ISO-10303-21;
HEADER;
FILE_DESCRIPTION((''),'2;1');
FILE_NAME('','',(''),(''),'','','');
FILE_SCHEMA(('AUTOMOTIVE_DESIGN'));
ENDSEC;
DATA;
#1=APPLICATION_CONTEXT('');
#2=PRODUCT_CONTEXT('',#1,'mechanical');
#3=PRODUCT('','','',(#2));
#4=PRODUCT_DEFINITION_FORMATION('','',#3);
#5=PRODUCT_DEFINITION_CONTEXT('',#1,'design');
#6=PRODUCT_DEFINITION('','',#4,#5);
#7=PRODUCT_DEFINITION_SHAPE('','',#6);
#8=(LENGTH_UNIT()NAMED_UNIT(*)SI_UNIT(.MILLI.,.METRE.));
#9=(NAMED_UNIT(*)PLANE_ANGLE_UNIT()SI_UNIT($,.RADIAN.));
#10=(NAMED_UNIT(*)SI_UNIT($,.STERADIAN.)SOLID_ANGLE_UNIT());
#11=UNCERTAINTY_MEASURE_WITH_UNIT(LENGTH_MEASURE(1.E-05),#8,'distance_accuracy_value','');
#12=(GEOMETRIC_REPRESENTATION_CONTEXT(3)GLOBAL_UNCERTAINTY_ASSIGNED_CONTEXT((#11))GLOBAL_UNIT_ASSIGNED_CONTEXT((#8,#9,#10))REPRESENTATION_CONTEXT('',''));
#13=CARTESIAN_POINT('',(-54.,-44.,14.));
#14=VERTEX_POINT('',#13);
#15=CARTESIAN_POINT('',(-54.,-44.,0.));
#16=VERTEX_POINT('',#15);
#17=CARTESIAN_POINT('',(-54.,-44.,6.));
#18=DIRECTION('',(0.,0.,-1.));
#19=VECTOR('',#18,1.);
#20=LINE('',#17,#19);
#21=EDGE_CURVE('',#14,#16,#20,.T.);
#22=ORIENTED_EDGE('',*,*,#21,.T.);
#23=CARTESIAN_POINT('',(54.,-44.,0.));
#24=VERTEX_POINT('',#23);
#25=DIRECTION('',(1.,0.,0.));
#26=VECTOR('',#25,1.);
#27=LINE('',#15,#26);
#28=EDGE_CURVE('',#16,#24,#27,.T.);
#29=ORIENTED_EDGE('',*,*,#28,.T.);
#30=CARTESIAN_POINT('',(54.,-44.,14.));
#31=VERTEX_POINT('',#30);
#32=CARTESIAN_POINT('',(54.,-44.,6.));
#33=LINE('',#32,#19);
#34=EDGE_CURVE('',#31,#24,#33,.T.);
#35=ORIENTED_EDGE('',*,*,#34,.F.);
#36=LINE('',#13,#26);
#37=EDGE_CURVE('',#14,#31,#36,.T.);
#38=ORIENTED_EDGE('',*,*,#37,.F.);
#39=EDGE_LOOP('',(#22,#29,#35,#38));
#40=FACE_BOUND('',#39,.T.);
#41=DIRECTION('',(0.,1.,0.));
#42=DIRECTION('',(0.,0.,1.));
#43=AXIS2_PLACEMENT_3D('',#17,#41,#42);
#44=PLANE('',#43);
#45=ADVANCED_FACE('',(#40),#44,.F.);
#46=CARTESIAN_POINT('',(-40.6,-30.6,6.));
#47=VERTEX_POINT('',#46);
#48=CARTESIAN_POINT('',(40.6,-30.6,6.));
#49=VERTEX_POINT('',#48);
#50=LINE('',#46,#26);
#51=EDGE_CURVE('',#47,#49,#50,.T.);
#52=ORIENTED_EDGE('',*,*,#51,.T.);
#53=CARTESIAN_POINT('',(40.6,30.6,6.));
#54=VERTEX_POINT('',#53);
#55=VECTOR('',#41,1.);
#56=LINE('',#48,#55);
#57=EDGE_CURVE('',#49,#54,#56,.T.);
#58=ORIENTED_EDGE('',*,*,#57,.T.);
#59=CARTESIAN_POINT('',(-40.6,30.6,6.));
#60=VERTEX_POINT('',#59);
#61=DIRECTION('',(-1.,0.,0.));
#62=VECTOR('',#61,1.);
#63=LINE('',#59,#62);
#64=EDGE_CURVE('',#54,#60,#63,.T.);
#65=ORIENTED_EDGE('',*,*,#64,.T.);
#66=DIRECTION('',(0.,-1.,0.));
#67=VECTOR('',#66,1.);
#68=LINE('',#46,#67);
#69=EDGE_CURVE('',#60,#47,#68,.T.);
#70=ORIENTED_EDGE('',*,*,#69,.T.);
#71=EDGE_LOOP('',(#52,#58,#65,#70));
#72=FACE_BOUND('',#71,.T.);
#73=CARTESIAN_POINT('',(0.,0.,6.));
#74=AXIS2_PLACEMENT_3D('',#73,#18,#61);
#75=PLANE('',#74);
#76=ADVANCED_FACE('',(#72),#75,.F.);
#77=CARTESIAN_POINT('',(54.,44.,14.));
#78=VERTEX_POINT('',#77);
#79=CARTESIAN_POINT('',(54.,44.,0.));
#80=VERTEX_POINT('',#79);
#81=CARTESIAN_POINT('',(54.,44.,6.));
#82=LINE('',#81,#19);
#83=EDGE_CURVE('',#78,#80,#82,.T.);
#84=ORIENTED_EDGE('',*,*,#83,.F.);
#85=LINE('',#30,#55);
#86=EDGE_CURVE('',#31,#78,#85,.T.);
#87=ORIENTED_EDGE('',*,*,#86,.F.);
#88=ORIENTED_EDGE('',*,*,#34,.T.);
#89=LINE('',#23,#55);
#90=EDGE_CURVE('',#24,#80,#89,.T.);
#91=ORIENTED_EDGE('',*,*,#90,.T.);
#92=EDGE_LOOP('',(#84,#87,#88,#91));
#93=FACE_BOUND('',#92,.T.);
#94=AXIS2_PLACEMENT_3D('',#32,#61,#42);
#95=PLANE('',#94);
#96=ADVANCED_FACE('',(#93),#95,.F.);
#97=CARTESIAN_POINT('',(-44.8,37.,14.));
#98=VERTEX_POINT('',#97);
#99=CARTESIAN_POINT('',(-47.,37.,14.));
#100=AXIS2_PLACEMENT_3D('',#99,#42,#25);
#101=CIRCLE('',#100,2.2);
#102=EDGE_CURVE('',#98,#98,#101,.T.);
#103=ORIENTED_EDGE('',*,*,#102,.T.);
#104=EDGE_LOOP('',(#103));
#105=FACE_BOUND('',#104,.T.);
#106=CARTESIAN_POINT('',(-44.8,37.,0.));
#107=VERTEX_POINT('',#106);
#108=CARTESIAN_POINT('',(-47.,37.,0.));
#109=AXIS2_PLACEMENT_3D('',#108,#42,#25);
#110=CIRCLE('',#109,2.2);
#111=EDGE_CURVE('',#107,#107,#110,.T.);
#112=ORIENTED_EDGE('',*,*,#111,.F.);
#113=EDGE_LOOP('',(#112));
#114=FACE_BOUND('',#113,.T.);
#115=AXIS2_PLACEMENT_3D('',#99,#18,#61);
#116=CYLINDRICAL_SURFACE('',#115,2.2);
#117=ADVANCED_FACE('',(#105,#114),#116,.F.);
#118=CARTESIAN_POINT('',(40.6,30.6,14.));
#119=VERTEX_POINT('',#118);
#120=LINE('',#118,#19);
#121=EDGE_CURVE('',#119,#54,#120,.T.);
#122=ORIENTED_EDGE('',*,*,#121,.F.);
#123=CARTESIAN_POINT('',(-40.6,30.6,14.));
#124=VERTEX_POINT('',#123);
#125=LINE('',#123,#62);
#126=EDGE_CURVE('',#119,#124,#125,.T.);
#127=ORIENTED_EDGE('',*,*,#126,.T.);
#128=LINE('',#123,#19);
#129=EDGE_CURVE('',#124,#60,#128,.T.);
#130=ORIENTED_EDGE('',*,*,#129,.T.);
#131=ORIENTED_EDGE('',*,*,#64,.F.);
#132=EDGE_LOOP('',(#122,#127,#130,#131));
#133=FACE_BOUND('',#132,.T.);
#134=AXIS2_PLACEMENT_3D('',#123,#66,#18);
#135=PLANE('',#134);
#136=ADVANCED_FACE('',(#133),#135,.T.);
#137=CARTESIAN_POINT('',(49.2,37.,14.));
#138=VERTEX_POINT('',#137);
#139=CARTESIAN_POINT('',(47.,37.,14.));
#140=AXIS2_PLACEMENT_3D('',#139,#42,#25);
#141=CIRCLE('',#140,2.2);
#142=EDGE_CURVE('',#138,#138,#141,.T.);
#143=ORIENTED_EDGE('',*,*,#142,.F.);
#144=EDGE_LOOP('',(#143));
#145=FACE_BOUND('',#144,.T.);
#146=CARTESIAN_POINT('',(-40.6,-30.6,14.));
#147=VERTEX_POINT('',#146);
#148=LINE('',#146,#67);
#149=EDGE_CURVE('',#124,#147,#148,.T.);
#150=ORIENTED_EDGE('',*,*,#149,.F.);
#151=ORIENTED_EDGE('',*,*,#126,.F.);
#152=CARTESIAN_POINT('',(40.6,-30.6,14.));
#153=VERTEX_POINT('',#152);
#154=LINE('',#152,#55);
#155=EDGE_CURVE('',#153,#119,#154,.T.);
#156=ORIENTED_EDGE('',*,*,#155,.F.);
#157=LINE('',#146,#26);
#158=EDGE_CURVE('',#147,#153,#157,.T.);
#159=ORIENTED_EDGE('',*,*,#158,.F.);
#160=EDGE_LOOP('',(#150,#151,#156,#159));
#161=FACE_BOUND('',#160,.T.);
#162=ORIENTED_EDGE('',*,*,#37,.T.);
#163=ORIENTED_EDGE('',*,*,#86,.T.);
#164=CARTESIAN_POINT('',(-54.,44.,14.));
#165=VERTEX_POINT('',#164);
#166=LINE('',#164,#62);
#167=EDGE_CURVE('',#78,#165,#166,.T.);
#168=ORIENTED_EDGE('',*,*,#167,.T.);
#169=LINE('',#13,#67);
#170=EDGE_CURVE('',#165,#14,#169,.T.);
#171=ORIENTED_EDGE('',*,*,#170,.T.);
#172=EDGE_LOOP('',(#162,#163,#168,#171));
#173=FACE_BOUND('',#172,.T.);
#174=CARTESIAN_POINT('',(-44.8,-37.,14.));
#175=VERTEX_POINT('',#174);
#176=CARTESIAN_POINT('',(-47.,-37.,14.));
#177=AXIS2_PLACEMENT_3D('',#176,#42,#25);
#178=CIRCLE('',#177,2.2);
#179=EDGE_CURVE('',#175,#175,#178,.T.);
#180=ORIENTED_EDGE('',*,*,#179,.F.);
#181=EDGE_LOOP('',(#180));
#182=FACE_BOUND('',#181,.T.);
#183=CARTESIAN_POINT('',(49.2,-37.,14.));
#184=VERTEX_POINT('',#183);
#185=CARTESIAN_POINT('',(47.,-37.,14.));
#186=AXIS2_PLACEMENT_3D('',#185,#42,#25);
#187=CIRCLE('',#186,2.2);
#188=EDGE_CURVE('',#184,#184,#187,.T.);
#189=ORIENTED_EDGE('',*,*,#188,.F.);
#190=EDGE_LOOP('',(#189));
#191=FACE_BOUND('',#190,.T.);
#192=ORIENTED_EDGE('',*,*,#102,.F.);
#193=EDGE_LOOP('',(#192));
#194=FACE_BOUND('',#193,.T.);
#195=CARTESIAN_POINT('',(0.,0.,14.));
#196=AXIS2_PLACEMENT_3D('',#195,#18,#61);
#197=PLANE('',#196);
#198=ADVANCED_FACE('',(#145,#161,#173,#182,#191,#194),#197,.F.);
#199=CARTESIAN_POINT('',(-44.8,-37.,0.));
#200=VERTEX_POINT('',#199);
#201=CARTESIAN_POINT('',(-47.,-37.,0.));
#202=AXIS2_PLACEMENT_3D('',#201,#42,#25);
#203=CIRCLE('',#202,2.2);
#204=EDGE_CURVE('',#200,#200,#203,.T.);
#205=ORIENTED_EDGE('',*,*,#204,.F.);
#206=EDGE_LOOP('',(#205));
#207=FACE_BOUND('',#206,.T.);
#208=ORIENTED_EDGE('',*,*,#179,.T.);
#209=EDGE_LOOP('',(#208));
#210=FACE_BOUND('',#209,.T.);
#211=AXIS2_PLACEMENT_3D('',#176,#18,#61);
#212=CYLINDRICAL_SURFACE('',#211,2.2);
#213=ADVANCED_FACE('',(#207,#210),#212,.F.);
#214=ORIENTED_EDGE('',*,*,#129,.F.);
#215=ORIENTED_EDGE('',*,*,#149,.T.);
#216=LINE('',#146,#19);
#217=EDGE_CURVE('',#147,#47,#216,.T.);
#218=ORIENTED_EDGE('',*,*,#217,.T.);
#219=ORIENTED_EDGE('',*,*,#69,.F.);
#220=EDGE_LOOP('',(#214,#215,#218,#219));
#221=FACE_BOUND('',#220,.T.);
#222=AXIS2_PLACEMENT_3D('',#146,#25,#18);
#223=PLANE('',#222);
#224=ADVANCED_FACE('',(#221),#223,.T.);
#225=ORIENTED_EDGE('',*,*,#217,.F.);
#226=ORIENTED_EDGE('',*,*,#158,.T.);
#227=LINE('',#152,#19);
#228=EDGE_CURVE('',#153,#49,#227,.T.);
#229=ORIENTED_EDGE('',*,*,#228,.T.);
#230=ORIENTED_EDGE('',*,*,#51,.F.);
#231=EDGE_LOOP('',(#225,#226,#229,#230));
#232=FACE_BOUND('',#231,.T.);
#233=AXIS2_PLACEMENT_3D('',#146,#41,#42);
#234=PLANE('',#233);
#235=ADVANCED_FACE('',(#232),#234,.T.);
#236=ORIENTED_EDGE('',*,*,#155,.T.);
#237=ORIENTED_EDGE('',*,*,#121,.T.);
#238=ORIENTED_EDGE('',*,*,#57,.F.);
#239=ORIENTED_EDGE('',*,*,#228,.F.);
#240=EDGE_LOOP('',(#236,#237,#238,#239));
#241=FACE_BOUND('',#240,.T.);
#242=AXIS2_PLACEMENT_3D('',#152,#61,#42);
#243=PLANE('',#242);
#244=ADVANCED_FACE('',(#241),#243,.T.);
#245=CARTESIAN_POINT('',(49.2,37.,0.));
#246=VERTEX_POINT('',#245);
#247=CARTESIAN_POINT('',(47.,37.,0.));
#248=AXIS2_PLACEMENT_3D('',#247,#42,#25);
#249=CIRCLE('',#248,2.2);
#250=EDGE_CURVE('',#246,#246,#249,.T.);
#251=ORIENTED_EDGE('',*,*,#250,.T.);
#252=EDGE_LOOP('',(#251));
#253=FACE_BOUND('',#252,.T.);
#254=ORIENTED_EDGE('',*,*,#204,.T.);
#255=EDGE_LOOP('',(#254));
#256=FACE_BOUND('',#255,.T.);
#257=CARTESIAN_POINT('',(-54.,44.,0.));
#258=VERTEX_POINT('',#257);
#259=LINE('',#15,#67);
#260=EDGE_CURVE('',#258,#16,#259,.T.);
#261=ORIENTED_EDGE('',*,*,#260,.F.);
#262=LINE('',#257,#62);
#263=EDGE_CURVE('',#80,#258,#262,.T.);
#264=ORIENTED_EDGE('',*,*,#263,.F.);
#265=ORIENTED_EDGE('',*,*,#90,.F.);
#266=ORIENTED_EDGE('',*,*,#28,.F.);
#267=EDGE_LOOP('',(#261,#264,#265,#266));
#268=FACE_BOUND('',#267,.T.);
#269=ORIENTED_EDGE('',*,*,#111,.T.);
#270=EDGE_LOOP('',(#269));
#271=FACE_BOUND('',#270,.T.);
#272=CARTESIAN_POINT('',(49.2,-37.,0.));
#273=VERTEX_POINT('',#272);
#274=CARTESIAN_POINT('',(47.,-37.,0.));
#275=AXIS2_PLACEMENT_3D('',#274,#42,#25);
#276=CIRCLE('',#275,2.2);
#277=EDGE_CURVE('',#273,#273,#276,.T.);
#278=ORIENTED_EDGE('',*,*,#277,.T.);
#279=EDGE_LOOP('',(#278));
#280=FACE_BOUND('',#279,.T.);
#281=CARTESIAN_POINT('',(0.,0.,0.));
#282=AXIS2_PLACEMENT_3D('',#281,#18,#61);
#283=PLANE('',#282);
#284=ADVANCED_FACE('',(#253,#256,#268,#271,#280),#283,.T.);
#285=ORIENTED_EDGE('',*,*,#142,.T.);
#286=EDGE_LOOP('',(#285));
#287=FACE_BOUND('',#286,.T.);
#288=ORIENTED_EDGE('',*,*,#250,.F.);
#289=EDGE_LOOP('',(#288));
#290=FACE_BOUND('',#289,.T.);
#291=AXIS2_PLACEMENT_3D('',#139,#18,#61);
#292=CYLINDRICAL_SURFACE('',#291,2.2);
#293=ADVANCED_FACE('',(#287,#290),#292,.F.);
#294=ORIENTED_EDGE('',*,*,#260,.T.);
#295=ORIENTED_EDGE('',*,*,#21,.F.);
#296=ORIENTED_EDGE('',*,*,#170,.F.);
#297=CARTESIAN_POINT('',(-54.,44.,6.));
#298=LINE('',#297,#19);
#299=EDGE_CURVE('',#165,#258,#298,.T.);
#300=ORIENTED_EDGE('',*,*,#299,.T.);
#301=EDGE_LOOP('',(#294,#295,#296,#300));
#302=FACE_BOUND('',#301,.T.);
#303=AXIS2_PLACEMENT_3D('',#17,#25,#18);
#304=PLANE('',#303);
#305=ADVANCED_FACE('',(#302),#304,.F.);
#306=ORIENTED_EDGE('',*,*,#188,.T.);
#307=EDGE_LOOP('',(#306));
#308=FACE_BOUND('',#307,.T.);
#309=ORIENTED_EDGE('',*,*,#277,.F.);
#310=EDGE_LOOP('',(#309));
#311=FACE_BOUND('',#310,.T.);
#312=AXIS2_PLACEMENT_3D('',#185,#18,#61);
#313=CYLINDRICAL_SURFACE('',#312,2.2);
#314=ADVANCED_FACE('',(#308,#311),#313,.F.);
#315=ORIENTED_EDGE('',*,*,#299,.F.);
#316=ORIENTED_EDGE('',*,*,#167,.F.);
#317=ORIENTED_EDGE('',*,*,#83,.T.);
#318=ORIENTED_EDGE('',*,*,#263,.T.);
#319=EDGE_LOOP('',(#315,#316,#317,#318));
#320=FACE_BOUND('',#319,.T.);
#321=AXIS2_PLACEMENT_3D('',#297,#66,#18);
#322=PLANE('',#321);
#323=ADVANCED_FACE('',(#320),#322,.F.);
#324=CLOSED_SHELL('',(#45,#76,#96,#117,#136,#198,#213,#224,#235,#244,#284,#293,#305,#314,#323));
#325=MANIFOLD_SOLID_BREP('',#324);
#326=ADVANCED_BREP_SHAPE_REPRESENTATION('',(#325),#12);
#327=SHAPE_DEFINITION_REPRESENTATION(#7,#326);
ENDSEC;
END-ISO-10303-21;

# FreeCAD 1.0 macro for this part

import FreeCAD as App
import Part
import Sketcher

V = App.Vector


def add_polygon(sketch, points):
    """Adds a closed chain of lines whose ends are joined by coincident constraints."""
    first, n = sketch.GeometryCount, len(points)
    for a, b in zip(points, points[1:] + points[:1]):
        sketch.addGeometry(Part.LineSegment(App.Vector(*a, 0), App.Vector(*b, 0)), False)
    for i in range(n):
        sketch.addConstraint(Sketcher.Constraint("Coincident", first + i, 2, first + (i + 1) % n, 1))

doc = App.newDocument("Part")
body = doc.addObject("PartDesign::Body", "Body")

# Sketch on XY plane
sketch1 = body.newObject("Sketcher::SketchObject", "Sketch")
sketch1.AttachmentSupport = (doc.getObject("XY_Plane"), [""])
sketch1.MapMode = "FlatFace"
add_polygon(sketch1, [(-54, 44), (-54, -44), (54, -44), (54, 44)])  # lines 0-3
sketch1.addConstraint([
    Sketcher.Constraint("Vertical", 0),
    Sketcher.Constraint("Horizontal", 1),
    Sketcher.Constraint("Vertical", 2),
    Sketcher.Constraint("Horizontal", 3),
    Sketcher.Constraint("Symmetric", 0, 2, 2, 2, -1, 1),
    Sketcher.Constraint("DistanceX", 1, 1, 1, 2, 108.0),
    Sketcher.Constraint("DistanceY", 0, 2, 0, 1, 88.0),
])
pad1 = body.newObject("PartDesign::Pad", "Pad")
pad1.Profile = sketch1
pad1.Length = 6

# Sketch on XY plane
sketch2 = body.newObject("Sketcher::SketchObject", "Sketch001")
sketch2.AttachmentSupport = (doc.getObject("XY_Plane"), [""])
sketch2.MapMode = "FlatFace"
sketch2.AttachmentOffset = App.Placement(V(0, 0, 6), App.Rotation())
add_polygon(sketch2, [(-54, 44), (-54, -44), (54, -44), (54, 44)])  # lines 0-3
add_polygon(sketch2, [(40.6, -30.6), (-40.6, -30.6), (-40.6, 30.6), (40.6, 30.6)])  # lines 4-7
sketch2.addConstraint([
    Sketcher.Constraint("Vertical", 0),
    Sketcher.Constraint("Horizontal", 1),
    Sketcher.Constraint("Vertical", 2),
    Sketcher.Constraint("Horizontal", 3),
    Sketcher.Constraint("Horizontal", 4),
    Sketcher.Constraint("Vertical", 5),
    Sketcher.Constraint("Horizontal", 6),
    Sketcher.Constraint("Vertical", 7),
    Sketcher.Constraint("Symmetric", 0, 2, 2, 2, -1, 1),
    Sketcher.Constraint("Symmetric", 4, 2, 6, 2, -1, 1),
    Sketcher.Constraint("DistanceX", 1, 1, 1, 2, 108.0),
    Sketcher.Constraint("DistanceY", 0, 2, 0, 1, 88.0),
    Sketcher.Constraint("DistanceX", 4, 2, 4, 1, 81.2),
    Sketcher.Constraint("DistanceY", 5, 1, 5, 2, 61.2),
])
pad2 = body.newObject("PartDesign::Pad", "Pad001")
pad2.Profile = sketch2
pad2.Length = 8

# Sketch on XY plane
sketch3 = body.newObject("Sketcher::SketchObject", "Sketch002")
sketch3.AttachmentSupport = (doc.getObject("XY_Plane"), [""])
sketch3.MapMode = "FlatFace"
sketch3.addGeometry(Part.Circle(V(-47, -37, 0), V(0, 0, 1), 2.2), False)
sketch3.addConstraint([
    Sketcher.Constraint("Diameter", 0, 4.4),
    Sketcher.Constraint("DistanceX", 0, 3, -1, 1, 47.0),
    Sketcher.Constraint("DistanceY", 0, 3, -1, 1, 37.0),
])
pocket1 = body.newObject("PartDesign::Pocket", "Pocket")
pocket1.Profile = sketch3
pocket1.Length = 14
pocket1.Reversed = True

# Sketch on XY plane
sketch4 = body.newObject("Sketcher::SketchObject", "Sketch003")
sketch4.AttachmentSupport = (doc.getObject("XY_Plane"), [""])
sketch4.MapMode = "FlatFace"
sketch4.addGeometry(Part.Circle(V(-47, 37, 0), V(0, 0, 1), 2.2), False)
sketch4.addConstraint([
    Sketcher.Constraint("Diameter", 0, 4.4),
    Sketcher.Constraint("DistanceX", 0, 3, -1, 1, 47.0),
    Sketcher.Constraint("DistanceY", -1, 1, 0, 3, 37.0),
])
pocket2 = body.newObject("PartDesign::Pocket", "Pocket001")
pocket2.Profile = sketch4
pocket2.Length = 14
pocket2.Reversed = True

# Sketch on XY plane
sketch5 = body.newObject("Sketcher::SketchObject", "Sketch004")
sketch5.AttachmentSupport = (doc.getObject("XY_Plane"), [""])
sketch5.MapMode = "FlatFace"
sketch5.addGeometry(Part.Circle(V(47, -37, 0), V(0, 0, 1), 2.2), False)
sketch5.addConstraint([
    Sketcher.Constraint("Diameter", 0, 4.4),
    Sketcher.Constraint("DistanceX", -1, 1, 0, 3, 47.0),
    Sketcher.Constraint("DistanceY", 0, 3, -1, 1, 37.0),
])
pocket3 = body.newObject("PartDesign::Pocket", "Pocket002")
pocket3.Profile = sketch5
pocket3.Length = 14
pocket3.Reversed = True

# Sketch on XY plane
sketch6 = body.newObject("Sketcher::SketchObject", "Sketch005")
sketch6.AttachmentSupport = (doc.getObject("XY_Plane"), [""])
sketch6.MapMode = "FlatFace"
sketch6.addGeometry(Part.Circle(V(47, 37, 0), V(0, 0, 1), 2.2), False)
sketch6.addConstraint([
    Sketcher.Constraint("Diameter", 0, 4.4),
    Sketcher.Constraint("DistanceX", -1, 1, 0, 3, 47.0),
    Sketcher.Constraint("DistanceY", -1, 1, 0, 3, 37.0),
])
pocket4 = body.newObject("PartDesign::Pocket", "Pocket003")
pocket4.Profile = sketch6
pocket4.Length = 14
pocket4.Reversed = True

doc.recompute()
